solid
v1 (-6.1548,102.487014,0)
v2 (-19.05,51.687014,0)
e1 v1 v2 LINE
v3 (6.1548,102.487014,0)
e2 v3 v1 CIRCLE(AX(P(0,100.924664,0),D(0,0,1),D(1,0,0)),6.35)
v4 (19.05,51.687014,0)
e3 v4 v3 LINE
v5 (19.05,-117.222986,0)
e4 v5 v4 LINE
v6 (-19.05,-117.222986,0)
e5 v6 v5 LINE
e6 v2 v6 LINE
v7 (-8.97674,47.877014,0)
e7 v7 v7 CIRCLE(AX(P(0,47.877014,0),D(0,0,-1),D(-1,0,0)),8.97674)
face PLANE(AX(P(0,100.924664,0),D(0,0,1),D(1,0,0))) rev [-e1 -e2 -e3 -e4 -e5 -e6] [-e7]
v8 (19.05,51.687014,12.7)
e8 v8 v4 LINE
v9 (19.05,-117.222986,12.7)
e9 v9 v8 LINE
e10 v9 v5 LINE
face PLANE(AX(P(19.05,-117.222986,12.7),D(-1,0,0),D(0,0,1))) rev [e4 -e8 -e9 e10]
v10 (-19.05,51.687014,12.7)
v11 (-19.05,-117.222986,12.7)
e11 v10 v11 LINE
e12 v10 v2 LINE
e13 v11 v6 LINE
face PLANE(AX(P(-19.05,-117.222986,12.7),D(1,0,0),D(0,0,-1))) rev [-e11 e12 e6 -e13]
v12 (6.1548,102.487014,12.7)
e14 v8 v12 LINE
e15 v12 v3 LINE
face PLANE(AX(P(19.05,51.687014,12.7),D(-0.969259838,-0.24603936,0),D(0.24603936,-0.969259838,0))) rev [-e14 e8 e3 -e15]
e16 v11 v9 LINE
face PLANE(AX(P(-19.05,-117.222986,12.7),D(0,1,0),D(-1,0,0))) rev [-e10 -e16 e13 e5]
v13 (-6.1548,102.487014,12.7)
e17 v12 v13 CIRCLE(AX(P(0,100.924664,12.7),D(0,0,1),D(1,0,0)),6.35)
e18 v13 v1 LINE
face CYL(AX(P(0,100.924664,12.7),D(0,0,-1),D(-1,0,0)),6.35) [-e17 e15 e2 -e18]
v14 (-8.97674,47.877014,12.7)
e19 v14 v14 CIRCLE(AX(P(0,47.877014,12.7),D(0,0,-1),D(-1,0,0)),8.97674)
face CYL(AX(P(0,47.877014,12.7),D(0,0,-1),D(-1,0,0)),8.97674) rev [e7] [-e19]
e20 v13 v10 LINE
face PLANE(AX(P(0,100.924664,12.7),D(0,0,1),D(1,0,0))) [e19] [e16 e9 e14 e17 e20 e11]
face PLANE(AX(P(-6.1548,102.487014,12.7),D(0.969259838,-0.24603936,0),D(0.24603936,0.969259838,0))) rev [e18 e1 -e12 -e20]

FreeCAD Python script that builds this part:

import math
import FreeCAD as App
import Part
import Sketcher
from FreeCAD import Vector
Q = App.Units.Quantity

doc = App.newDocument("Part")
body = doc.addObject("PartDesign::Body", "Body")

# Sketch on XY plane
sketch1 = doc.addObject("Sketcher::SketchObject", "Sketch")
body.addObject(sketch1)
sketch1.AttachmentSupport = (doc.XY_Plane, [""])
sketch1.MapMode = "FlatFace"
sketch1.addGeometry([
    Part.LineSegment(Vector(19.05, 51.687014, 0), Vector(6.1548, 102.487014, 0)),  # 0
    Part.ArcOfCircle(Part.Circle(Vector(0, 100.924664, 0), Vector(0, 0, 1), 6.35), math.radians(14.243265), math.radians(165.756735)),  # 1
    Part.LineSegment(Vector(-6.1548, 102.487014, 0), Vector(-19.05, 51.687014, 0)),  # 2
    Part.LineSegment(Vector(-19.05, 51.687014, 0), Vector(-19.05, -117.222986, 0)),  # 3
    Part.LineSegment(Vector(-19.05, -117.222986, 0), Vector(19.05, -117.222986, 0)),  # 4
    Part.LineSegment(Vector(19.05, -117.222986, 0), Vector(19.05, 51.687014, 0)),  # 5
], False)
sketch1.addConstraint([
    Sketcher.Constraint("Tangent", 0, 2, 1, 1),
    Sketcher.Constraint("Tangent", 1, 2, 2, 1),
    Sketcher.Constraint("Coincident", 2, 2, 3, 1),
    Sketcher.Constraint("Coincident", 3, 2, 4, 1),
    Sketcher.Constraint("Coincident", 4, 2, 5, 1),
    Sketcher.Constraint("Coincident", 5, 2, 0, 1),
    Sketcher.Constraint("Vertical", 3),
    Sketcher.Constraint("Horizontal", 4),
    Sketcher.Constraint("Vertical", 5),
    Sketcher.Constraint("Symmetric", 0, 2, 1, 2, -2),
    Sketcher.Constraint("Horizontal", 2, 2, 5, 2),
    Sketcher.Constraint("Radius", 1, Q("0.25 in")),
    Sketcher.Constraint("DistanceX", 4, 1, 4, 2, Q("1.5 in")),
    Sketcher.Constraint("DistanceY", 2, 2, 1, 2, Q("2 in")),
    Sketcher.Constraint("DistanceY", 3, 2, 3, 1, Q("6.65 in")),
    Sketcher.Constraint("DistanceY", -1, 1, 1, 3, 100.924664),
])
pad1 = doc.addObject("PartDesign::Pad", "Pad")
body.addObject(pad1)
pad1.Profile = sketch1
pad1.Length = Q("0.5 in")

# Sketch on XY plane
sketch2 = doc.addObject("Sketcher::SketchObject", "Sketch001")
body.addObject(sketch2)
sketch2.AttachmentSupport = (doc.XY_Plane, [""])
sketch2.MapMode = "FlatFace"
sketch2.addGeometry(Part.Circle(Vector(0, 47.877014, 0), Vector(0, 0, 1), 8.97674), False)
sketch2.addConstraint([
    Sketcher.Constraint("PointOnObject", 0, 3, -2),
    Sketcher.Constraint("Diameter", 0, 17.95348),
    Sketcher.Constraint("DistanceY", -1, 1, 0, 3, 47.877014),
])
pocket1 = doc.addObject("PartDesign::Pocket", "Pocket")
body.addObject(pocket1)
pocket1.Profile = sketch2
pocket1.Type = "ThroughAll"
pocket1.Reversed = True

doc.recompute()
